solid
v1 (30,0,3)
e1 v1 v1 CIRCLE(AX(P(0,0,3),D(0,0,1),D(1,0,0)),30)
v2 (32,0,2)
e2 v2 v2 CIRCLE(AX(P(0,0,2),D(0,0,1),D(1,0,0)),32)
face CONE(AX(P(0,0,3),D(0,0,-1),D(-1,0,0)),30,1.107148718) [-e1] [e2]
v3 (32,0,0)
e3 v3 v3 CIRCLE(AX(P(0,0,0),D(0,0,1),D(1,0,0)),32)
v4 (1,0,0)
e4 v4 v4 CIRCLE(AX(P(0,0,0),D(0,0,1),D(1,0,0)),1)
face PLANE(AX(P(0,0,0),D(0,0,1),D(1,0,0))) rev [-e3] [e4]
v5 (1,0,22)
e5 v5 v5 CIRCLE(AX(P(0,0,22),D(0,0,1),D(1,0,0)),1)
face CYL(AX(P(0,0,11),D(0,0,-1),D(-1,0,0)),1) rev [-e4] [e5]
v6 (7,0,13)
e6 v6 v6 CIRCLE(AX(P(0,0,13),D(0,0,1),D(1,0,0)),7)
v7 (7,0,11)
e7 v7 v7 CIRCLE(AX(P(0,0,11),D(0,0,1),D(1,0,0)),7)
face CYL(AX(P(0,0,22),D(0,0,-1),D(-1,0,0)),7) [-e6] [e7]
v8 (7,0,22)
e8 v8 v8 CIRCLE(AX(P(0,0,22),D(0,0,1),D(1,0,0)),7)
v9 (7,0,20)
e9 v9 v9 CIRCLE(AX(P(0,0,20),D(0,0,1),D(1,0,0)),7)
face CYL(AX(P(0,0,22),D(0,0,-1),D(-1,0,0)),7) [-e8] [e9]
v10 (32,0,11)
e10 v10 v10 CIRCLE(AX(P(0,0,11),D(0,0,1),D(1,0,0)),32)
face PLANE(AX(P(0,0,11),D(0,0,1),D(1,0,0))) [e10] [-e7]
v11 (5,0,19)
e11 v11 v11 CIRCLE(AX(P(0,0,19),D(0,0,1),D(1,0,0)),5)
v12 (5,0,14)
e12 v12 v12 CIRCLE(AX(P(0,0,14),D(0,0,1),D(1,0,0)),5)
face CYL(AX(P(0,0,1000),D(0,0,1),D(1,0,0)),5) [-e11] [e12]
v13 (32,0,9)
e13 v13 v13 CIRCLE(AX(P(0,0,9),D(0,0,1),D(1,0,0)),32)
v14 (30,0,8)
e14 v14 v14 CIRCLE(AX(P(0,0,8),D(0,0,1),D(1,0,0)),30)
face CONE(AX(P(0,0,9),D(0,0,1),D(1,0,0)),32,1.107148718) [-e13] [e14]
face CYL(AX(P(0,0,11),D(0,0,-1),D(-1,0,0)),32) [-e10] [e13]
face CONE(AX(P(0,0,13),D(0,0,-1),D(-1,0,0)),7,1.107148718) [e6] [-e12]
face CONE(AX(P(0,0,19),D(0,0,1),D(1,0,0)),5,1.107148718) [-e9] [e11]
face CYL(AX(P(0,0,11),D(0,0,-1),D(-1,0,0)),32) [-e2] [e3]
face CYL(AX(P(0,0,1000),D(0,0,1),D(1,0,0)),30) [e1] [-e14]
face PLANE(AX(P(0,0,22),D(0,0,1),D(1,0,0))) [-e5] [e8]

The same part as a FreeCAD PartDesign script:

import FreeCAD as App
import Part
import Sketcher
from FreeCAD import Vector
Q = App.Units.Quantity

doc = App.newDocument("Part")
body = doc.addObject("PartDesign::Body", "Body")

sketch1 = doc.addObject("Sketcher::SketchObject", "Sketch")
body.addObject(sketch1)
sketch1.AttachmentSupport = (doc.XY_Plane, [""])
sketch1.MapMode = "FlatFace"
sketch1.addGeometry([
    Part.Circle(Vector(0, 0, 0), Vector(0, 0, 1), 32),
    Part.Circle(Vector(0, 0, 0), Vector(0, 0, 1), 1),
], False)
sketch1.addConstraint([
    Sketcher.Constraint("Coincident", 0, 3, -1, 1),
    Sketcher.Constraint("Coincident", 1, 3, -1, 1),
    Sketcher.Constraint("Diameter", 0, Q("64 mm")),
    Sketcher.Constraint("Diameter", 1, Q("2 mm")),
])
pad1 = doc.addObject("PartDesign::Pad", "Pad")
body.addObject(pad1)
pad1.Profile = sketch1
pad1.Length = 11

sketch2 = doc.addObject("Sketcher::SketchObject", "Sketch001")
body.addObject(sketch2)
sketch2.AttachmentSupport = (doc.YZ_Plane, [""])
sketch2.MapMode = "FlatFace"
sketch2.addGeometry([
    Part.LineSegment(Vector(30, 3, 0), Vector(32, 2, 0)),
    Part.LineSegment(Vector(32, 2, 0), Vector(32, 9, 0)),
    Part.LineSegment(Vector(32, 9, 0), Vector(30, 8, 0)),
    Part.LineSegment(Vector(30, 8, 0), Vector(30, 3, 0)),
], False)
sketch2.addConstraint([
    Sketcher.Constraint("Coincident", 0, 2, 1, 1),
    Sketcher.Constraint("Coincident", 1, 2, 2, 1),
    Sketcher.Constraint("Coincident", 2, 2, 3, 1),
    Sketcher.Constraint("Coincident", 3, 2, 0, 1),
    Sketcher.Constraint("Vertical", 1),
    Sketcher.Constraint("Vertical", 3),
    Sketcher.Constraint("Equal", 0, 2),
    Sketcher.Constraint("DistanceY", 1, 1, 1, 2, Q("7 mm")),
    Sketcher.Constraint("DistanceY", 3, 2, 3, 1, Q("5 mm")),
    Sketcher.Constraint("DistanceX", -1, 1, 0, 2, Q("32 mm")),
    Sketcher.Constraint("DistanceY", -1, 1, 0, 2, Q("2 mm")),
    Sketcher.Constraint("DistanceX", -1, 1, 2, 2, Q("30 mm")),
])
groove = doc.addObject("PartDesign::Groove", "Groove")
body.addObject(groove)
groove.Profile = sketch2
groove.ReferenceAxis = (sketch2, ["V_Axis"])
groove.Angle = 360

sketch3 = doc.addObject("Sketcher::SketchObject", "Sketch002")
body.addObject(sketch3)
sketch3.AttachmentSupport = (doc.XY_Plane, [""])
sketch3.MapMode = "FlatFace"
sketch3.AttachmentOffset = App.Placement(Vector(0, 0, 11), App.Rotation())
sketch3.addGeometry([
    Part.Circle(Vector(0, 0, 0), Vector(0, 0, 1), 7),
    Part.Circle(Vector(0, 0, 0), Vector(0, 0, 1), 1),
], False)
sketch3.addConstraint([
    Sketcher.Constraint("Coincident", 0, 3, -1, 1),
    Sketcher.Constraint("Coincident", 1, 3, -1, 1),
    Sketcher.Constraint("Diameter", 0, Q("14 mm")),
    Sketcher.Constraint("Diameter", 1, Q("2 mm")),
])
pad2 = doc.addObject("PartDesign::Pad", "Pad001")
body.addObject(pad2)
pad2.Profile = sketch3
pad2.Length = 11

sketch4 = doc.addObject("Sketcher::SketchObject", "Sketch003")
body.addObject(sketch4)
sketch4.AttachmentSupport = (doc.YZ_Plane, [""])
sketch4.MapMode = "FlatFace"
sketch4.addGeometry([
    Part.LineSegment(Vector(7, 13, 0), Vector(7, 20, 0)),
    Part.LineSegment(Vector(7, 20, 0), Vector(5, 19, 0)),
    Part.LineSegment(Vector(5, 19, 0), Vector(5, 14, 0)),
    Part.LineSegment(Vector(5, 14, 0), Vector(7, 13, 0)),
], False)
sketch4.addConstraint([
    Sketcher.Constraint("Coincident", 0, 2, 1, 1),
    Sketcher.Constraint("Coincident", 1, 2, 2, 1),
    Sketcher.Constraint("Coincident", 2, 2, 3, 1),
    Sketcher.Constraint("Coincident", 3, 2, 0, 1),
    Sketcher.Constraint("Vertical", 0),
    Sketcher.Constraint("Vertical", 2),
    Sketcher.Constraint("Equal", 1, 3),
    Sketcher.Constraint("DistanceY", 0, 1, 0, 2, Q("7 mm")),
    Sketcher.Constraint("DistanceY", 2, 2, 2, 1, Q("5 mm")),
    Sketcher.Constraint("DistanceX", -1, 1, 0, 2, Q("7 mm")),
    Sketcher.Constraint("DistanceY", -1, 1, 0, 2, Q("20 mm")),
    Sketcher.Constraint("DistanceX", -1, 1, 1, 2, Q("5 mm")),
])
groove2 = doc.addObject("PartDesign::Groove", "Groove001")
body.addObject(groove2)
groove2.Profile = sketch4
groove2.ReferenceAxis = (sketch4, ["V_Axis"])
groove2.Angle = 360

doc.recompute()
